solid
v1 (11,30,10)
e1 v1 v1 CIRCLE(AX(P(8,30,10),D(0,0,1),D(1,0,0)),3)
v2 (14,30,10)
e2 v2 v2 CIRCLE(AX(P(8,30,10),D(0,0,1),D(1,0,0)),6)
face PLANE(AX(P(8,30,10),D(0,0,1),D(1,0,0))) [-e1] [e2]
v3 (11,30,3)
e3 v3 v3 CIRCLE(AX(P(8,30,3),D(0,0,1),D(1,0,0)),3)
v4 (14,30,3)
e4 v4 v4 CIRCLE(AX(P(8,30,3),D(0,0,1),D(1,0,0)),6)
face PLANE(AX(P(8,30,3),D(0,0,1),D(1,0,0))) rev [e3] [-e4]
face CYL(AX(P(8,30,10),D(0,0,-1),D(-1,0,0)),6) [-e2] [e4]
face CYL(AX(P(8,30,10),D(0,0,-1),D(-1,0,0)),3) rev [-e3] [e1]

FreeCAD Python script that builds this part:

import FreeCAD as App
import Part
import Sketcher
from FreeCAD import Vector
Q = App.Units.Quantity

doc = App.newDocument("Part")
body = doc.addObject("PartDesign::Body", "Body")

# Sketch on XY plane
sketch1 = doc.addObject("Sketcher::SketchObject", "Sketch")
body.addObject(sketch1)
sketch1.AttachmentSupport = (doc.XY_Plane, [""])
sketch1.MapMode = "FlatFace"
sketch1.AttachmentOffset = App.Placement(Vector(0, 0, 3), App.Rotation())
sketch1.addGeometry(Part.Circle(Vector(8, 30, 0), Vector(0, 0, 1), 6), False)
sketch1.addGeometry(Part.Circle(Vector(8, 30, 0), Vector(0, 0, 1), 3), False)
sketch1.addConstraint(Sketcher.Constraint("Coincident", 1, 3, 0, 3))
sketch1.addConstraint(Sketcher.Constraint("Diameter", 0, Q("12 mm")))
sketch1.addConstraint(Sketcher.Constraint("Diameter", 1, Q("6 mm")))
sketch1.addConstraint(Sketcher.Constraint("DistanceX", -1, 1, 0, 3, Q("8 mm")))
sketch1.addConstraint(Sketcher.Constraint("DistanceY", -1, 1, 0, 3, Q("30 mm")))
pad1 = doc.addObject("PartDesign::Pad", "Pad")
body.addObject(pad1)
pad1.Profile = sketch1
pad1.Length = 7

doc.recompute()
